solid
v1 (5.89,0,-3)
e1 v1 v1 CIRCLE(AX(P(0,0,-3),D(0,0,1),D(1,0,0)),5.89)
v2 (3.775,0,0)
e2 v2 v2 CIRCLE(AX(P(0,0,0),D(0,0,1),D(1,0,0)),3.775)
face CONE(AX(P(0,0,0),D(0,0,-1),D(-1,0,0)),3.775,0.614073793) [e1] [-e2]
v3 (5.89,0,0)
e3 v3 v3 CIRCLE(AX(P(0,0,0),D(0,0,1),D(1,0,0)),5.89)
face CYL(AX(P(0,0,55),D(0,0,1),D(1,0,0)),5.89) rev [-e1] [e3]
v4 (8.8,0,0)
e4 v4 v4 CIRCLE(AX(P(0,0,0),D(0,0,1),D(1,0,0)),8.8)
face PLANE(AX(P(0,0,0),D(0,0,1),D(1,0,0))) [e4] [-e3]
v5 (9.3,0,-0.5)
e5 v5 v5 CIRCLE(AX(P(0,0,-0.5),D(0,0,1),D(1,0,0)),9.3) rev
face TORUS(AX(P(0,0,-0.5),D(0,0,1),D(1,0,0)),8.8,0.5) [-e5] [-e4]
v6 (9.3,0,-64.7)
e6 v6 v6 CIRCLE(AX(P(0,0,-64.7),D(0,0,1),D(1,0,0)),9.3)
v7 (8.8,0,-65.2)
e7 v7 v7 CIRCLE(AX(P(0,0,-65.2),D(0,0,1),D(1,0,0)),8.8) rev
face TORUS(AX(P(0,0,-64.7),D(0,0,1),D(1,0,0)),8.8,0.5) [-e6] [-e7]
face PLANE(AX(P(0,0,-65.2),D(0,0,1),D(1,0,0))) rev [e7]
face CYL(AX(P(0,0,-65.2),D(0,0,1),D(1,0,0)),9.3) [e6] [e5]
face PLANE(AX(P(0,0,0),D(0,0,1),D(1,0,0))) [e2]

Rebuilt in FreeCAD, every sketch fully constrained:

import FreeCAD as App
import Part
import Sketcher
from FreeCAD import Vector


def edges_at(feature, points):
    """Names of the edges that pass closest to the given points."""
    edges = feature.Shape.Edges
    near = lambda p: min(range(len(edges)), key=lambda i: edges[i].distToShape(Part.Vertex(*p))[0])
    return sorted({f"Edge{near(p) + 1}" for p in points})


def add_polygon(sketch, points):
    """Adds a closed chain of lines whose ends are joined by coincident constraints."""
    first, n = sketch.GeometryCount, len(points)
    for a, b in zip(points, points[1:] + points[:1]):
        sketch.addGeometry(Part.LineSegment(App.Vector(*a, 0), App.Vector(*b, 0)), False)
    for i in range(n):
        sketch.addConstraint(Sketcher.Constraint("Coincident", first + i, 2, first + (i + 1) % n, 1))

doc = App.newDocument("Part")
params = doc.addObject("Spreadsheet::Sheet", "Params")
for row, (alias, value) in enumerate([
    ("sketch1_diameter", "18.6 mm"),
    ("pad1_length", "65.2 mm"),
    ("sketch2_height", "3 mm"),
    ("groove_angle", "360 deg"),
    ("fillet_radius", "0.5 mm"),
], start=1):
    params.set(f"A{row}", alias)
    params.set(f"B{row}", "=" + value)
    params.setAlias(f"B{row}", alias)

body = doc.addObject("PartDesign::Body", "Body")

sketch1 = body.newObject("Sketcher::SketchObject", "Sketch")
sketch1.AttachmentSupport = (doc.getObject("XY_Plane"), [""])
sketch1.MapMode = "FlatFace"
sketch1.addGeometry(Part.Circle(Vector(0, 0, 0), Vector(0, 0, 1), 9.3), False)
sketch1.addConstraint([
    Sketcher.Constraint("Coincident", 0, 3, -1, 1),
    Sketcher.Constraint("Diameter", 0, 18.6),
])
sketch1.setExpression("Constraints[1]", "Params.sketch1_diameter")
pad1 = body.newObject("PartDesign::Pad", "Pad")
pad1.Profile = sketch1
pad1.setExpression("Length", "Params.pad1_length")
pad1.Reversed = True

sketch2 = body.newObject("Sketcher::SketchObject", "Sketch001")
sketch2.AttachmentSupport = (doc.getObject("YZ_Plane"), [""])
sketch2.MapMode = "FlatFace"
add_polygon(sketch2, [(5.89, 0), (3.775, 0), (5.89, -3)])
sketch2.addConstraint([
    Sketcher.Constraint("Horizontal", 0),
    Sketcher.Constraint("Vertical", 2),
    Sketcher.Constraint("PointOnObject", 0, 2, -1),
    Sketcher.Constraint("DistanceY", 2, 1, 2, 2, 3.0),
    Sketcher.Constraint("DistanceX", 0, 2, 0, 1, 2.115),
    Sketcher.Constraint("DistanceX", -1, 1, 1, 2, 5.89),
])
sketch2.setExpression("Constraints[6]", "Params.sketch2_height")
groove = body.newObject("PartDesign::Groove", "Groove")
groove.Profile = sketch2
groove.ReferenceAxis = (sketch2, ["V_Axis"])
groove.setExpression("Angle", "Params.groove_angle")
doc.recompute()

fillet = body.newObject("PartDesign::Fillet", "Fillet")
fillet.Base = (groove, edges_at(groove, [(-9.3, 0, 0), (-9.3, 0, -65.2)]))
fillet.setExpression("Radius", "Params.fillet_radius")

doc.recompute()
